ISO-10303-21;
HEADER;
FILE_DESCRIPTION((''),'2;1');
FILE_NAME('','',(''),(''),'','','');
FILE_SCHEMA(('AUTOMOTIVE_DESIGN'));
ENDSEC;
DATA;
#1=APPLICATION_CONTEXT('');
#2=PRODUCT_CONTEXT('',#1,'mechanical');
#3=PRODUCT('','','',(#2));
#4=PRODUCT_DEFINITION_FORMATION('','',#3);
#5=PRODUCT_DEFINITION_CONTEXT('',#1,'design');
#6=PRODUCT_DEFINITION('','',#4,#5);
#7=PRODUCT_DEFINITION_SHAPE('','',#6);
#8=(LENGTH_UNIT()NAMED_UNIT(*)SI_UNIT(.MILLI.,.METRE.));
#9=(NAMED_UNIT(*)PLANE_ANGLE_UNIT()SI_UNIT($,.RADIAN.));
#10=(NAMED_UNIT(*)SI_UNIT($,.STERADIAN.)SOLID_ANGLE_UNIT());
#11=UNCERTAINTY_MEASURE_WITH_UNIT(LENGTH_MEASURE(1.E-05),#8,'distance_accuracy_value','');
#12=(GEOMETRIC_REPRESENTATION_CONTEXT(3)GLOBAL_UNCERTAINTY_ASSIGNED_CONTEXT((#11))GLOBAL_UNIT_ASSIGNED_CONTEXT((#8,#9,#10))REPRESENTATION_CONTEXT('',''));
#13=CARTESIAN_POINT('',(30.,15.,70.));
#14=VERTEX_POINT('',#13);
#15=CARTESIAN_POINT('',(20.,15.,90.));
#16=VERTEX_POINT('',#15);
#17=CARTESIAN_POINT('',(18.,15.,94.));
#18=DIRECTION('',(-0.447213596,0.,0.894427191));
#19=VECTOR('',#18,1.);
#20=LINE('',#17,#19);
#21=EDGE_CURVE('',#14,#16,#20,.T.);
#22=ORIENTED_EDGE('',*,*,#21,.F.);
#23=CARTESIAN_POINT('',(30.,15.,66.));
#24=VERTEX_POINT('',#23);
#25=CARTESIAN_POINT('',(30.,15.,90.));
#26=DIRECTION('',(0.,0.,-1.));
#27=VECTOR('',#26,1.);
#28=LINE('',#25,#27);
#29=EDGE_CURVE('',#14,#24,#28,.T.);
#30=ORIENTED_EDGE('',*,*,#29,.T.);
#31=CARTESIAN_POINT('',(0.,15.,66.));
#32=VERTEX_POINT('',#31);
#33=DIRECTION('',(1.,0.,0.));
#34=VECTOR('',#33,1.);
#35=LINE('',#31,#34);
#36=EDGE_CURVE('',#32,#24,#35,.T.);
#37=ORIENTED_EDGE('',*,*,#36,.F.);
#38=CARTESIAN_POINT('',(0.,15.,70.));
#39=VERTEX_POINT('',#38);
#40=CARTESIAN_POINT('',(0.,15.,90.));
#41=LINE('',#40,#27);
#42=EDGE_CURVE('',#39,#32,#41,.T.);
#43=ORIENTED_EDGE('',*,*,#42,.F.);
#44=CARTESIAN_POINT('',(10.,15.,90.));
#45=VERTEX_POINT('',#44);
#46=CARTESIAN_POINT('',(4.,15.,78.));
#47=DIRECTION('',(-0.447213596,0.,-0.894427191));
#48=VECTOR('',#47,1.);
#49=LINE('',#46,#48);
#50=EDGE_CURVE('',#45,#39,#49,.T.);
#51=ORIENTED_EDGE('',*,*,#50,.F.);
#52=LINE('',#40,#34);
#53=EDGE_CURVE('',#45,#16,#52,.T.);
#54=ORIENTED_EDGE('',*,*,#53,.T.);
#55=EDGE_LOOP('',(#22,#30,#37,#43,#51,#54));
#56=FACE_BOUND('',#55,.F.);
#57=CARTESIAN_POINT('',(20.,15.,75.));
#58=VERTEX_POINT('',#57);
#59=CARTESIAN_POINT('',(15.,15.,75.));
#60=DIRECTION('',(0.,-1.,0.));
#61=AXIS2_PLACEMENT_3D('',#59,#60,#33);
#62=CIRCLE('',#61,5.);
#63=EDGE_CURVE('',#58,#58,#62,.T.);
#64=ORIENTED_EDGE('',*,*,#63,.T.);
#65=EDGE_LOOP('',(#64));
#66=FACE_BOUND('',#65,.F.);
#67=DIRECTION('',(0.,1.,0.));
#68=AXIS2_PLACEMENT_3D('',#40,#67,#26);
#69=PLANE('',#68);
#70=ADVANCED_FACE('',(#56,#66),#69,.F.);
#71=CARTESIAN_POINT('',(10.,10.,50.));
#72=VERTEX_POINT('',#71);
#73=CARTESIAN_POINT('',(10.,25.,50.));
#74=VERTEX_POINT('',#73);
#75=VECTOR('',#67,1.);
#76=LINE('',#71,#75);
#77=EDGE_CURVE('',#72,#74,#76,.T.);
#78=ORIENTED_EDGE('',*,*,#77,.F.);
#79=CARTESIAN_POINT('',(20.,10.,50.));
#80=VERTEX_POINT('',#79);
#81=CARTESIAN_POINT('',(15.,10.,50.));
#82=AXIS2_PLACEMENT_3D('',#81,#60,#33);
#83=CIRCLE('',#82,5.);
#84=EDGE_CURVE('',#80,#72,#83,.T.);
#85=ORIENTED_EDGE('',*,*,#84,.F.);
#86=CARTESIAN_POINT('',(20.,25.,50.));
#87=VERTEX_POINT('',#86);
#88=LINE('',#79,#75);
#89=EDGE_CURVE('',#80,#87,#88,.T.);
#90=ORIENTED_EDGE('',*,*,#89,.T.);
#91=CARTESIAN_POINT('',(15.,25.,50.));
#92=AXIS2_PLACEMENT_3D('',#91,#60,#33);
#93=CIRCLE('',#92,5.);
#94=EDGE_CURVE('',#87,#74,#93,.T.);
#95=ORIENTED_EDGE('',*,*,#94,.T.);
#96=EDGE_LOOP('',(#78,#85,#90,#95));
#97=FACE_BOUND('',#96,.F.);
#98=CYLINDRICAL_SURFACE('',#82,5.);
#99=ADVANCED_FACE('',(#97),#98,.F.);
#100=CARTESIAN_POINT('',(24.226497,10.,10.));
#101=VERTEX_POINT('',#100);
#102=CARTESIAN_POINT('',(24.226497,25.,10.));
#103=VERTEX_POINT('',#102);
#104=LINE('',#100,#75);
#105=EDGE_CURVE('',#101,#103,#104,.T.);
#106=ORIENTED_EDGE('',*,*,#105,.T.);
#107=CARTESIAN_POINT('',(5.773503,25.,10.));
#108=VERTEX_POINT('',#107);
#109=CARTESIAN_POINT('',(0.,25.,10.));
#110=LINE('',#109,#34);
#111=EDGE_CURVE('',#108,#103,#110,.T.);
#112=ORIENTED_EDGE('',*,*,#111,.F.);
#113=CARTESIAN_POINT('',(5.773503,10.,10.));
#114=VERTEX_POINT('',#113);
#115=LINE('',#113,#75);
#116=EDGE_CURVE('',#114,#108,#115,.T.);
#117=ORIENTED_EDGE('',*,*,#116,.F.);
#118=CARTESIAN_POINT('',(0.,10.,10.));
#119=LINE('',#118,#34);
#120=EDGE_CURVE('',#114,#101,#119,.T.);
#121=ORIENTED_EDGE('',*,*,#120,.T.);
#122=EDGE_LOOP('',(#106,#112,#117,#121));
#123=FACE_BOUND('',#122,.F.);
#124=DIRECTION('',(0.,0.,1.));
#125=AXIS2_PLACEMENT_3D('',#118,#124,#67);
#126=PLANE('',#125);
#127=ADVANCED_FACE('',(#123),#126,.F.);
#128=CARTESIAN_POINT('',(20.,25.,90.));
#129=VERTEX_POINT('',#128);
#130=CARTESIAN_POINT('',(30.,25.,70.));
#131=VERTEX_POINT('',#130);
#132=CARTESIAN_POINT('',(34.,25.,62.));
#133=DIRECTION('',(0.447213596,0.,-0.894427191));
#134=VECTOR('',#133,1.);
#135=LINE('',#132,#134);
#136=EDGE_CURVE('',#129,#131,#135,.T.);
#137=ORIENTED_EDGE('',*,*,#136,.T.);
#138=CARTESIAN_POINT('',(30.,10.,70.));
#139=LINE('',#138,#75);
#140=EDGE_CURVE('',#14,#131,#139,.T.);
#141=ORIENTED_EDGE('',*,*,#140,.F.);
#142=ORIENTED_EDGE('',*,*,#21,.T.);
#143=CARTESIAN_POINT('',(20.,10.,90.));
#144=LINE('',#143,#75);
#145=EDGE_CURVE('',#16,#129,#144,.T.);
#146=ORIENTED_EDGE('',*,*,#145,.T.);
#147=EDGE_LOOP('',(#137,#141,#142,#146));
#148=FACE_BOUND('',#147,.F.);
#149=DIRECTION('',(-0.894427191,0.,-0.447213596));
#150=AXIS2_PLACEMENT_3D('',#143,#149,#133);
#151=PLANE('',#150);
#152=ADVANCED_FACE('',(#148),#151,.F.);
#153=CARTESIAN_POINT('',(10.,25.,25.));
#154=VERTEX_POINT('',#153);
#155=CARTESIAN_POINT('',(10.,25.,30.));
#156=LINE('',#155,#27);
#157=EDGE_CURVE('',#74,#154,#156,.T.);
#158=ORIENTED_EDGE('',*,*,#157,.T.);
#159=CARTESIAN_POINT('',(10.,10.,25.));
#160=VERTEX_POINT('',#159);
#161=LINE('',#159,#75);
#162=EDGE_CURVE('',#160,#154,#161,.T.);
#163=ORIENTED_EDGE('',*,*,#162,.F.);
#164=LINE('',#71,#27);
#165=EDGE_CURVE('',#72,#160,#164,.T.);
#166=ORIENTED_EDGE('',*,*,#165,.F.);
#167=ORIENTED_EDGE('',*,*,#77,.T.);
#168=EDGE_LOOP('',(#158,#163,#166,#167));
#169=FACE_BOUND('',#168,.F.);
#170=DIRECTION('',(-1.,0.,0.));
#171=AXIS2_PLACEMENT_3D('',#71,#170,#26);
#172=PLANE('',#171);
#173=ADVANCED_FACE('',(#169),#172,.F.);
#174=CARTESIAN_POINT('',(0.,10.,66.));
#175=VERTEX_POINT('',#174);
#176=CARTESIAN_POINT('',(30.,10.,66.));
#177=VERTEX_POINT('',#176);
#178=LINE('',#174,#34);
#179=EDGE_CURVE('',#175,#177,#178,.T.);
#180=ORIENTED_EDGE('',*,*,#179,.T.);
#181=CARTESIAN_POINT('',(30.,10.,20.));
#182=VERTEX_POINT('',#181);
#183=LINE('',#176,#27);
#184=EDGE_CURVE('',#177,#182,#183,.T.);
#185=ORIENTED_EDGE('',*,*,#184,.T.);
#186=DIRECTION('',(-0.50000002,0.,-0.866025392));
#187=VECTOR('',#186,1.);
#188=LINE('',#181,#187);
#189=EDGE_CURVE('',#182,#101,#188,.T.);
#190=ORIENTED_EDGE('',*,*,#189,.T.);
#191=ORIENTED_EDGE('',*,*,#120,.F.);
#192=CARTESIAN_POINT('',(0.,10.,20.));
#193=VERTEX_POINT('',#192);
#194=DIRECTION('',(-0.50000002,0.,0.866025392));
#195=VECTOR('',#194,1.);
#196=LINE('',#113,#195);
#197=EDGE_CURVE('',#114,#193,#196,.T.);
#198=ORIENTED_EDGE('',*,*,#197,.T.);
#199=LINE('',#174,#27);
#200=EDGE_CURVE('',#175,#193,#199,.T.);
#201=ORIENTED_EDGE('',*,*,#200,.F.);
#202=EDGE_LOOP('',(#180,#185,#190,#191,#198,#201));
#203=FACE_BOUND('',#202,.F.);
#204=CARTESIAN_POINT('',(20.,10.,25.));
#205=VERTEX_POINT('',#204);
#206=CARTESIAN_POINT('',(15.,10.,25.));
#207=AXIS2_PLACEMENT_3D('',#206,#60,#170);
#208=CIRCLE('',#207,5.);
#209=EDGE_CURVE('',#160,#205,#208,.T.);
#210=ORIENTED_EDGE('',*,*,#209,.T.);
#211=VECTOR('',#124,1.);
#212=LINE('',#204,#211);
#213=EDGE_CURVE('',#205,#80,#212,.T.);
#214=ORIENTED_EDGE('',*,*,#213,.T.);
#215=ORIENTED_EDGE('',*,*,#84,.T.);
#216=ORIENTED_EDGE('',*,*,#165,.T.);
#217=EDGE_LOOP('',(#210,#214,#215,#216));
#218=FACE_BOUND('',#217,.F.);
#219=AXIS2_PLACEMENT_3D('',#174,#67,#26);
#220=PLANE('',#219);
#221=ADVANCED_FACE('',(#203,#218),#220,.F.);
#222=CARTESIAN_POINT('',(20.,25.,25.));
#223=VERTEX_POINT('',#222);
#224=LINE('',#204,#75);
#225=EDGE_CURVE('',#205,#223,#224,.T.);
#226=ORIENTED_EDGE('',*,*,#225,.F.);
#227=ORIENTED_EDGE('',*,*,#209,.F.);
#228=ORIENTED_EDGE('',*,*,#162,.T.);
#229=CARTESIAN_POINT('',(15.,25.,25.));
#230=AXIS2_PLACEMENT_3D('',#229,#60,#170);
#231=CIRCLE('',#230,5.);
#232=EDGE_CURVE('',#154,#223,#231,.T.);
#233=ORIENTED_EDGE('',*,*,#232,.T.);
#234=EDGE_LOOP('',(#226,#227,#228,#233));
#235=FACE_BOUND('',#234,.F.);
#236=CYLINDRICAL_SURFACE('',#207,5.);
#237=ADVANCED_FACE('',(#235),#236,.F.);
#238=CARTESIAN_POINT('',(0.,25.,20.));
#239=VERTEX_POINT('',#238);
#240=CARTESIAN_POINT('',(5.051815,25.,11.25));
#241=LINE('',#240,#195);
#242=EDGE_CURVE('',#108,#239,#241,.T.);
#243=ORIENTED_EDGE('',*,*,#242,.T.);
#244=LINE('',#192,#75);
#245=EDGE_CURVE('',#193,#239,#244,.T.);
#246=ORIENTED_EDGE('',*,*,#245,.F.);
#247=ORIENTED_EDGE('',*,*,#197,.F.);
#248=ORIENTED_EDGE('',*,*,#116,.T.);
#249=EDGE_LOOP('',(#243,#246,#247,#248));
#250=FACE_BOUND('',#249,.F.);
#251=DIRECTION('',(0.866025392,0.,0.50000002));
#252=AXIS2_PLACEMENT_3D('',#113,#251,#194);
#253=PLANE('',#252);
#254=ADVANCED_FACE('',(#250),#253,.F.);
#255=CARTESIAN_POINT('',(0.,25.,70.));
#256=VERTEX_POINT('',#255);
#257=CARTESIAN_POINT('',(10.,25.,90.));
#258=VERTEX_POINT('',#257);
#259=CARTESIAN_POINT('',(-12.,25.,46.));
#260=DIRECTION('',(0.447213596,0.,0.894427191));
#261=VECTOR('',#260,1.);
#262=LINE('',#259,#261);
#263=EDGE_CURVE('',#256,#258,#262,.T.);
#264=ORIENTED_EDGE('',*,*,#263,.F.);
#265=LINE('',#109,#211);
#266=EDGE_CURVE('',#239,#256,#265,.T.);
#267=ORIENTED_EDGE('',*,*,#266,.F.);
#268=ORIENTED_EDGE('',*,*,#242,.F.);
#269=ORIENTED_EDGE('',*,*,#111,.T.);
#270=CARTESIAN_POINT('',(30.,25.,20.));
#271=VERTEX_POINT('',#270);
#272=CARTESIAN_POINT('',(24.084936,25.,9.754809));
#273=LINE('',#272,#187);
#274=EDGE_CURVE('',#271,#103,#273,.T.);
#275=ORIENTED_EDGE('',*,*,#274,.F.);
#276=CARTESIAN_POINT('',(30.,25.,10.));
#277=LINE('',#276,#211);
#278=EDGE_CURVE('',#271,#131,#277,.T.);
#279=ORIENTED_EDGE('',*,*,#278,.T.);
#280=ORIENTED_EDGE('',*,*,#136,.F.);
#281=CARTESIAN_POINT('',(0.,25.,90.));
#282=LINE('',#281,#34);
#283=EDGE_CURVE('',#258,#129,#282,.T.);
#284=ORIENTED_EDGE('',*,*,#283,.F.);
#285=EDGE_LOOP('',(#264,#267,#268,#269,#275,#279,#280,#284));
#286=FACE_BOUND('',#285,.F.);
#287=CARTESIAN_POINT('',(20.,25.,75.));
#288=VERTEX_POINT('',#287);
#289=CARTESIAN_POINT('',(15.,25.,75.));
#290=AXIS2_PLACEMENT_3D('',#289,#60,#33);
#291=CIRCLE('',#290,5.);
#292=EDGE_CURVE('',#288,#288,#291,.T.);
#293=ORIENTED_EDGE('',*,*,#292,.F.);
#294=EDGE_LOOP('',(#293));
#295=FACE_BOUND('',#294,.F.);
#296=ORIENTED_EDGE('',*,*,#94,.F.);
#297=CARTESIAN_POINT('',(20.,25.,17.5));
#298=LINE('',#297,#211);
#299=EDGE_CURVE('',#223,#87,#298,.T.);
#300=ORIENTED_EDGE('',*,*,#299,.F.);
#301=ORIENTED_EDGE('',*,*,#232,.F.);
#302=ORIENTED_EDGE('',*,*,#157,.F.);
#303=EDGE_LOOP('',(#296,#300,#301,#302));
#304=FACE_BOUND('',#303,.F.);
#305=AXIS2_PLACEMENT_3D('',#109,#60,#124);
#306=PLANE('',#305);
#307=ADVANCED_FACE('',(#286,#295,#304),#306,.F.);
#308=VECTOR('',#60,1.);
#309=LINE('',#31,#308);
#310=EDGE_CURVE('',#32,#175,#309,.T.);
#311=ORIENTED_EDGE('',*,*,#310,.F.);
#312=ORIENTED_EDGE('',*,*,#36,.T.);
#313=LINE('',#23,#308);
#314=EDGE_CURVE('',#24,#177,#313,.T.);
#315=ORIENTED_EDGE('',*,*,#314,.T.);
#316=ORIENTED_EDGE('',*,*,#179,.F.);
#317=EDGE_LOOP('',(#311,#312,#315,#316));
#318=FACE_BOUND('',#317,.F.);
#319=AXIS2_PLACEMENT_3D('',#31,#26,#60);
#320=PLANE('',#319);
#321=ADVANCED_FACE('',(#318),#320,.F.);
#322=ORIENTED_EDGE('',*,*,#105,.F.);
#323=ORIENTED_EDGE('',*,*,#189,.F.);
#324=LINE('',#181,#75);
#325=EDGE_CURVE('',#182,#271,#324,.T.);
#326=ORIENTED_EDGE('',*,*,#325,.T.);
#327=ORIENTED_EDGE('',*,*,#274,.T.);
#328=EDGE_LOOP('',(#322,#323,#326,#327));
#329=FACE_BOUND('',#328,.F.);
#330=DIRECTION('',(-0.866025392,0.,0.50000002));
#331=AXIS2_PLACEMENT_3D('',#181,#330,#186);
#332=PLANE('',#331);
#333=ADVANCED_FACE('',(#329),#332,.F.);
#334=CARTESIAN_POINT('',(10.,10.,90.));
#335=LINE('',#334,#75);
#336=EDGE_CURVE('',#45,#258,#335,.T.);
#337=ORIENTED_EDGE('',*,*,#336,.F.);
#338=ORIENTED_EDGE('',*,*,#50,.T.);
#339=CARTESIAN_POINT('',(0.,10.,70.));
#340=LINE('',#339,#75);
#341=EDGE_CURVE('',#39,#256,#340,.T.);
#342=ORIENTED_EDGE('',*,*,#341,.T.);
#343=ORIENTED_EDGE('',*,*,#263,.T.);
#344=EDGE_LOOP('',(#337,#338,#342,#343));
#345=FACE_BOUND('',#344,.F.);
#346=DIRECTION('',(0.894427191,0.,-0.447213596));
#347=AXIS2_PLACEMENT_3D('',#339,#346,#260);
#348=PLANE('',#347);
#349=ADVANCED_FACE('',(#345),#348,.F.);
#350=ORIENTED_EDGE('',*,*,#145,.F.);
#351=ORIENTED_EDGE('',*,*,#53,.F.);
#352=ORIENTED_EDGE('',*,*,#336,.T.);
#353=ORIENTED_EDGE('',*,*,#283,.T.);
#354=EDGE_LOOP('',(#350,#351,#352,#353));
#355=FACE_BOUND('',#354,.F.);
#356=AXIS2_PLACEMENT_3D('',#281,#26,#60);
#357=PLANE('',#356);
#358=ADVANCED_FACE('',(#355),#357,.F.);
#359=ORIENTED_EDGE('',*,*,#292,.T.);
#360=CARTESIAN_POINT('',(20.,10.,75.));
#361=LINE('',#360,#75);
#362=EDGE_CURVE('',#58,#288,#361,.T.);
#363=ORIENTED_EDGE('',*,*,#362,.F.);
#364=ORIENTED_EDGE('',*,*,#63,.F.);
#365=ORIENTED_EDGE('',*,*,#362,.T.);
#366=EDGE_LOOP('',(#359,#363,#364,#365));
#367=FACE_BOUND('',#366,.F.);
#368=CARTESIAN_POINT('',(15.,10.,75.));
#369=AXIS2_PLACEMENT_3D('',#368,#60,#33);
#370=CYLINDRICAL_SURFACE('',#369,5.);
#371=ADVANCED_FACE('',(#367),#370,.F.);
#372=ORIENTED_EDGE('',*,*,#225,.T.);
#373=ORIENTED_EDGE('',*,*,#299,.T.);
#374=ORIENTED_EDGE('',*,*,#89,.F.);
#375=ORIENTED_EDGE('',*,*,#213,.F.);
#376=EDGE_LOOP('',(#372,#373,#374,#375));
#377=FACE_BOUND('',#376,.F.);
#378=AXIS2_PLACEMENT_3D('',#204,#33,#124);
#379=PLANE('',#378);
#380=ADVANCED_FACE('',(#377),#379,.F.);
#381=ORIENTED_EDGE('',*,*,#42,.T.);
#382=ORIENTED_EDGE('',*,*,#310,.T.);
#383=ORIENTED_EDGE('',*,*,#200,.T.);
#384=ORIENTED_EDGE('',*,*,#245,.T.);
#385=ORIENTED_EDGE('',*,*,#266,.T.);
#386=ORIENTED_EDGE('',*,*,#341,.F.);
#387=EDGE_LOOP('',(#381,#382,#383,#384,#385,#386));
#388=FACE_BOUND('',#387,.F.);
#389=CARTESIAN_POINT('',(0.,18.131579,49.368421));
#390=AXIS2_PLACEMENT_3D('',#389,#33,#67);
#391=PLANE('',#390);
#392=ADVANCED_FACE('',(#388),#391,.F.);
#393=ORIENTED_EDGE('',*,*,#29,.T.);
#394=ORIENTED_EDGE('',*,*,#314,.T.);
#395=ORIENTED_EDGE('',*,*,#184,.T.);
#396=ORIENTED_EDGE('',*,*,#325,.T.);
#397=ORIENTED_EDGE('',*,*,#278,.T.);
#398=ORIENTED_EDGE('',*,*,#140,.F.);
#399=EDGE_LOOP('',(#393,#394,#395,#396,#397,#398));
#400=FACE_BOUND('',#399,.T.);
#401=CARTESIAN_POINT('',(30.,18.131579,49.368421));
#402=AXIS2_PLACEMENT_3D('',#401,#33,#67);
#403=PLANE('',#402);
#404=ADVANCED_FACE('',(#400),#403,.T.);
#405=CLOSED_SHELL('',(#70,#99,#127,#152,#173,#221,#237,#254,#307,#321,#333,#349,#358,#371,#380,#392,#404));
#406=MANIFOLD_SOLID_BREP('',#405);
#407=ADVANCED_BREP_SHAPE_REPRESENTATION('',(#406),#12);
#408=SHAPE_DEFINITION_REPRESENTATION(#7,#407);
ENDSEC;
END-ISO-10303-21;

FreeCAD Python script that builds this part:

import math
import FreeCAD as App
import Part
import Sketcher
Q = App.Units.Quantity


def add_polygon(sketch, points):
    """Adds a closed chain of lines whose ends are joined by coincident constraints."""
    first, n = sketch.GeometryCount, len(points)
    for a, b in zip(points, points[1:] + points[:1]):
        sketch.addGeometry(Part.LineSegment(App.Vector(*a, 0), App.Vector(*b, 0)), False)
    for i in range(n):
        sketch.addConstraint(Sketcher.Constraint("Coincident", first + i, 2, first + (i + 1) % n, 1))

doc = App.newDocument("Part")
body = doc.addObject("PartDesign::Body", "Body")

# Sketch on YZ plane
sketch1 = doc.addObject("Sketcher::SketchObject", "Sketch")
body.addObject(sketch1)
sketch1.AttachmentSupport = (doc.YZ_Plane, [""])
sketch1.MapMode = "FlatFace"
add_polygon(sketch1, [(15, 66), (10, 66), (10, 10), (25, 10), (25, 90), (15, 90)])  # lines 0-5
sketch1.addConstraint(Sketcher.Constraint("Horizontal", 0))
sketch1.addConstraint(Sketcher.Constraint("Vertical", 1))
sketch1.addConstraint(Sketcher.Constraint("Horizontal", 2))
sketch1.addConstraint(Sketcher.Constraint("Vertical", 3))
sketch1.addConstraint(Sketcher.Constraint("Horizontal", 4))
sketch1.addConstraint(Sketcher.Constraint("Vertical", 5))
sketch1.addConstraint(Sketcher.Constraint("DistanceX", 0, 2, 0, 1, Q("5 mm")))
sketch1.addConstraint(Sketcher.Constraint("DistanceX", 2, 1, 2, 2, Q("15 mm")))
sketch1.addConstraint(Sketcher.Constraint("DistanceY", 1, 2, 1, 1, Q("56 mm")))
sketch1.addConstraint(Sketcher.Constraint("DistanceY", 3, 1, 3, 2, Q("80 mm")))
sketch1.addConstraint(Sketcher.Constraint("DistanceX", -1, 1, 0, 2, Q("10 mm")))
sketch1.addConstraint(Sketcher.Constraint("DistanceY", -1, 1, 0, 2, Q("66 mm")))
pad1 = doc.addObject("PartDesign::Pad", "Pad")
body.addObject(pad1)
pad1.Profile = sketch1
pad1.Length = 30

# Sketch on XZ plane
sketch2 = doc.addObject("Sketcher::SketchObject", "Sketch001")
body.addObject(sketch2)
sketch2.AttachmentSupport = (doc.XZ_Plane, [""])
sketch2.MapMode = "FlatFace"
sketch2.AttachmentOffset = App.Placement(App.Vector(0, 0, -10), App.Rotation())
sketch2.addGeometry(Part.LineSegment(App.Vector(10, 50, 0), App.Vector(10, 25, 0)), False)  # 0
sketch2.addGeometry(Part.ArcOfCircle(Part.Circle(App.Vector(15, 25, 0), App.Vector(0, 0, 1), 5), math.radians(180), math.radians(360)), False)  # 1
sketch2.addGeometry(Part.LineSegment(App.Vector(20, 25, 0), App.Vector(20, 50, 0)), False)  # 2
sketch2.addGeometry(Part.ArcOfCircle(Part.Circle(App.Vector(15, 50, 0), App.Vector(0, 0, 1), 5), math.radians(0), math.radians(180)), False)  # 3
sketch2.addGeometry(Part.Circle(App.Vector(15, 75, 0), App.Vector(0, 0, 1), 5), False)  # 4
add_polygon(sketch2, [(30, 10), (30, 20), (24, 10)])  # lines 5-7
add_polygon(sketch2, [(6, 10), (0, 20), (0, 10)])  # lines 8-10
sketch2.addConstraint(Sketcher.Constraint("Tangent", 0, 2, 1, 1))
sketch2.addConstraint(Sketcher.Constraint("Tangent", 1, 2, 2, 1))
sketch2.addConstraint(Sketcher.Constraint("Tangent", 2, 2, 3, 1))
sketch2.addConstraint(Sketcher.Constraint("Tangent", 3, 2, 0, 1))
sketch2.addConstraint(Sketcher.Constraint("Vertical", 0))
sketch2.addConstraint(Sketcher.Constraint("Vertical", 2))
sketch2.addConstraint(Sketcher.Constraint("Vertical", 5))
sketch2.addConstraint(Sketcher.Constraint("Horizontal", 7))
sketch2.addConstraint(Sketcher.Constraint("Vertical", 9))
sketch2.addConstraint(Sketcher.Constraint("Horizontal", 10))
sketch2.addConstraint(Sketcher.Constraint("Equal", 3, 4))
sketch2.addConstraint(Sketcher.Constraint("PointOnObject", 8, 2, -2))
sketch2.addConstraint(Sketcher.Constraint("Horizontal", 5, 2, 8, 2))
sketch2.addConstraint(Sketcher.Constraint("Horizontal", 7, 2, 9, 2))
sketch2.addConstraint(Sketcher.Constraint("Vertical", 3, 3, 4, 3))
sketch2.addConstraint(Sketcher.Constraint("Equal", 7, 10))
sketch2.addConstraint(Sketcher.Constraint("Diameter", 4, Q("10 mm")))
sketch2.addConstraint(Sketcher.Constraint("DistanceY", 0, 2, 0, 1, Q("25 mm")))
sketch2.addConstraint(Sketcher.Constraint("DistanceY", 5, 1, 5, 2, Q("10 mm")))
sketch2.addConstraint(Sketcher.Constraint("Angle", 6, Q("-120.000001 deg")))
sketch2.addConstraint(Sketcher.Constraint("DistanceX", -1, 1, 1, 3, Q("15 mm")))
sketch2.addConstraint(Sketcher.Constraint("DistanceY", -1, 1, 1, 3, Q("25 mm")))
sketch2.addConstraint(Sketcher.Constraint("DistanceY", -1, 1, 4, 3, Q("75 mm")))
sketch2.addConstraint(Sketcher.Constraint("DistanceX", -1, 1, 5, 2, Q("30 mm")))
sketch2.addConstraint(Sketcher.Constraint("DistanceY", -1, 1, 5, 2, Q("20 mm")))
pocket1 = doc.addObject("PartDesign::Pocket", "Pocket")
body.addObject(pocket1)
pocket1.Profile = sketch2
pocket1.Type = "ThroughAll"

# Sketch on XZ plane
sketch3 = doc.addObject("Sketcher::SketchObject", "Sketch002")
body.addObject(sketch3)
sketch3.AttachmentSupport = (doc.XZ_Plane, [""])
sketch3.MapMode = "FlatFace"
sketch3.AttachmentOffset = App.Placement(App.Vector(0, 0, -10), App.Rotation())
add_polygon(sketch3, [(0, 70), (10, 90), (0, 90)])  # lines 0-2
add_polygon(sketch3, [(30, 90), (20, 90), (30, 70)])  # lines 3-5
sketch3.addConstraint(Sketcher.Constraint("Horizontal", 1))
sketch3.addConstraint(Sketcher.Constraint("Vertical", 2))
sketch3.addConstraint(Sketcher.Constraint("Horizontal", 3))
sketch3.addConstraint(Sketcher.Constraint("Vertical", 5))
sketch3.addConstraint(Sketcher.Constraint("PointOnObject", 1, 2, -2))
sketch3.addConstraint(Sketcher.Constraint("Horizontal", 1, 2, 3, 2))
sketch3.addConstraint(Sketcher.Constraint("Horizontal", 2, 2, 4, 2))
sketch3.addConstraint(Sketcher.Constraint("Equal", 1, 3))
sketch3.addConstraint(Sketcher.Constraint("DistanceX", 1, 2, 1, 1, Q("10 mm")))
sketch3.addConstraint(Sketcher.Constraint("DistanceY", 2, 2, 2, 1, Q("20 mm")))
sketch3.addConstraint(Sketcher.Constraint("DistanceY", -1, 1, 0, 2, Q("90 mm")))
sketch3.addConstraint(Sketcher.Constraint("DistanceX", -1, 1, 3, 2, Q("20 mm")))
pocket2 = doc.addObject("PartDesign::Pocket", "Pocket001")
body.addObject(pocket2)
pocket2.Profile = sketch3
pocket2.Type = "ThroughAll"

doc.recompute()
